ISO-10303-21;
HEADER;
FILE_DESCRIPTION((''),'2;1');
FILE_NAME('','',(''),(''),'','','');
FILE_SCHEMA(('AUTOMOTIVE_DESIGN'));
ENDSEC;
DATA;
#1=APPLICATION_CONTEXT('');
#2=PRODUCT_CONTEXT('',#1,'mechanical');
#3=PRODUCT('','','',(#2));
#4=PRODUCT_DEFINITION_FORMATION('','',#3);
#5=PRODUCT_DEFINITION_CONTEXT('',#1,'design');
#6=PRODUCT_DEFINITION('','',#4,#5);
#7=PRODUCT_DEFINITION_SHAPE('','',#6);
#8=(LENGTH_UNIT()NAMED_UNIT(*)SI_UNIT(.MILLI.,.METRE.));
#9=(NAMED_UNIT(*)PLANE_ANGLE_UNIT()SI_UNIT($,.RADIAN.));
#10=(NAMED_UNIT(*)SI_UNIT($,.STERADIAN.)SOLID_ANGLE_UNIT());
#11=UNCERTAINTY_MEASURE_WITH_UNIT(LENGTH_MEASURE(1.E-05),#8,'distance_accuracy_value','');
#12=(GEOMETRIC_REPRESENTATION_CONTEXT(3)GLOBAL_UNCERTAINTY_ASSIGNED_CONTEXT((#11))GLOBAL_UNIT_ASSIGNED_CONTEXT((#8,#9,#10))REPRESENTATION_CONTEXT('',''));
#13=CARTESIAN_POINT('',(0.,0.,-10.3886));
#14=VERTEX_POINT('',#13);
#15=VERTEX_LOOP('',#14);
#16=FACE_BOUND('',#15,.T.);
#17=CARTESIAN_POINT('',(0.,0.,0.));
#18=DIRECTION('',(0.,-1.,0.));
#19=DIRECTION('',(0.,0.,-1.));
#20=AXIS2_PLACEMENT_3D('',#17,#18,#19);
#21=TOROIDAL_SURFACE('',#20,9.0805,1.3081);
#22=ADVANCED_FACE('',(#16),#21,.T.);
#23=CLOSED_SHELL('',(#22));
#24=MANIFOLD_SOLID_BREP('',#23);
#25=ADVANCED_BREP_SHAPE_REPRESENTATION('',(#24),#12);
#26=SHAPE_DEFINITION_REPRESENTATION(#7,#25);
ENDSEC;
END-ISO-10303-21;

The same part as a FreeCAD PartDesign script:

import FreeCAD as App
import Part
import Sketcher

V = App.Vector
Q = App.Units.Quantity

doc = App.newDocument("Part")
body = doc.addObject("PartDesign::Body", "Body")

# Sketch on XY plane
sketch1 = body.newObject("Sketcher::SketchObject", "Sketch")
sketch1.AttachmentSupport = (doc.getObject("XY_Plane"), [""])
sketch1.MapMode = "FlatFace"
sketch1.addGeometry(Part.Circle(V(-9.1, 0, 0), V(0, 0, 1), 1.3), False)
sketch1.addConstraint([
    Sketcher.Constraint("PointOnObject", 0, 3, -1),
    Sketcher.Constraint("Diameter", 0, Q("0.103 in")),
    Sketcher.Constraint("DistanceX", 0, 3, -1, 1, Q("0.3575 in")),
])

# Sketch on XZ plane
sketch2 = body.newObject("Sketcher::SketchObject", "Sketch001")
sketch2.AttachmentSupport = (doc.getObject("XZ_Plane"), [""])
sketch2.MapMode = "FlatFace"
sketch2.addGeometry(Part.Circle(V(0, 0, 0), V(0, 0, 1), 8), False)
sketch2.addConstraint([
    Sketcher.Constraint("Coincident", 0, 3, -1, 1),
    Sketcher.Constraint("Diameter", 0, Q("0.612 in")),
])
doc.recompute()

additivepipe = body.newObject("PartDesign::AdditivePipe", "AdditivePipe")
additivepipe.Profile = sketch1
additivepipe.Spine = (sketch2, ["Edge1"])

doc.recompute()
